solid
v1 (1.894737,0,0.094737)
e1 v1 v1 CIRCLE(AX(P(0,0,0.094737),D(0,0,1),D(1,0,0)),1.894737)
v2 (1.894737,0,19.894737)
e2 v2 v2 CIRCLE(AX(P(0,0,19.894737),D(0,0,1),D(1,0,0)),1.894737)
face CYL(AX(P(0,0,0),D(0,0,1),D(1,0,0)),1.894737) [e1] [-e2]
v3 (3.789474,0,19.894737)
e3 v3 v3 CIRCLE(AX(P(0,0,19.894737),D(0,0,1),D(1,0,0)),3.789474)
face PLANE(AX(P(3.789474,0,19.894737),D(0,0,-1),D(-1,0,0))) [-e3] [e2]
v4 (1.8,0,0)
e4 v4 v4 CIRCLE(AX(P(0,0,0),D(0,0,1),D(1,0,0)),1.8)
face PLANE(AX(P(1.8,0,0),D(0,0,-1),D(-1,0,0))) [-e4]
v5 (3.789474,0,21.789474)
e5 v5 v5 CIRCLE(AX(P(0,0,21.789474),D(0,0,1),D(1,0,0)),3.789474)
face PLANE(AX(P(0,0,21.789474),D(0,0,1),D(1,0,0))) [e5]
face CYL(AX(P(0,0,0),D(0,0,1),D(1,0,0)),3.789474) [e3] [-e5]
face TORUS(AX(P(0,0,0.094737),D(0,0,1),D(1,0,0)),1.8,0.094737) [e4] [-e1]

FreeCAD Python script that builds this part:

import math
import FreeCAD as App
import Part
import Sketcher

doc = App.newDocument("Part")
params = doc.addObject("Spreadsheet::Sheet", "Params")
for row, (alias, value) in enumerate([
    ("sketch1_width", "1.8 mm"),
    ("sketch1_height", "19.8 mm"),
    ("revolution_angle", "360 deg"),
], start=1):
    params.set(f"A{row}", alias)
    params.set(f"B{row}", "=" + value)
    params.setAlias(f"B{row}", alias)

body = doc.addObject("PartDesign::Body", "Body")

# Sketch on XZ plane
sketch1 = body.newObject("Sketcher::SketchObject", "Sketch")
sketch1.AttachmentSupport = (doc.getObject("XZ_Plane"), [""])
sketch1.MapMode = "FlatFace"
sketch1.addGeometry(Part.LineSegment(App.Vector(1.8, 0, 0), App.Vector(0, 0, 0)), False)
sketch1.addGeometry(Part.LineSegment(App.Vector(0, 0, 0), App.Vector(0, 21.789474, 0)), False)
sketch1.addGeometry(Part.LineSegment(App.Vector(0, 21.789474, 0), App.Vector(3.789474, 21.789474, 0)), False)
sketch1.addGeometry(Part.LineSegment(App.Vector(3.789474, 21.789474, 0), App.Vector(3.789474, 19.894737, 0)), False)
sketch1.addGeometry(Part.LineSegment(App.Vector(3.789474, 19.894737, 0), App.Vector(1.894737, 19.894737, 0)), False)
sketch1.addGeometry(Part.LineSegment(App.Vector(1.894737, 19.894737, 0), App.Vector(1.894737, 0.094737, 0)), False)
sketch1.addGeometry(Part.ArcOfCircle(Part.Circle(App.Vector(1.8, 0.094737, 0), App.Vector(0, 0, 1), 0.094737), math.radians(-89.999999), math.radians(-0.000001)), False)
sketch1.addConstraint(Sketcher.Constraint("Coincident", 0, 2, 1, 1))
sketch1.addConstraint(Sketcher.Constraint("Coincident", 1, 2, 2, 1))
sketch1.addConstraint(Sketcher.Constraint("Coincident", 2, 2, 3, 1))
sketch1.addConstraint(Sketcher.Constraint("Coincident", 3, 2, 4, 1))
sketch1.addConstraint(Sketcher.Constraint("Coincident", 4, 2, 5, 1))
sketch1.addConstraint(Sketcher.Constraint("Tangent", 5, 2, 6, 2))
sketch1.addConstraint(Sketcher.Constraint("Tangent", 6, 1, 0, 1))
sketch1.addConstraint(Sketcher.Constraint("Horizontal", 0))
sketch1.addConstraint(Sketcher.Constraint("Vertical", 1))
sketch1.addConstraint(Sketcher.Constraint("Horizontal", 2))
sketch1.addConstraint(Sketcher.Constraint("Vertical", 3))
sketch1.addConstraint(Sketcher.Constraint("Horizontal", 4))
sketch1.addConstraint(Sketcher.Constraint("Vertical", 5))
sketch1.addConstraint(Sketcher.Constraint("Coincident", 0, 2, -1, 1))
sketch1.addConstraint(Sketcher.Constraint("Equal", 4, 3))
sketch1.addConstraint(Sketcher.Constraint("DistanceX", 0, 2, 0, 1, 1.8))
sketch1.addConstraint(Sketcher.Constraint("DistanceY", 5, 2, 5, 1, 19.8))
sketch1.addConstraint(Sketcher.Constraint("Radius", 6, 0.094737))
sketch1.addConstraint(Sketcher.Constraint("DistanceX", 2, 1, 2, 2, 3.789474))
sketch1.setExpression("Constraints[15]", "Params.sketch1_width")
sketch1.setExpression("Constraints[16]", "Params.sketch1_height")
revolution = body.newObject("PartDesign::Revolution", "Revolution")
revolution.Profile = sketch1
revolution.ReferenceAxis = (sketch1, ["V_Axis"])
revolution.setExpression("Angle", "Params.revolution_angle")

doc.recompute()
